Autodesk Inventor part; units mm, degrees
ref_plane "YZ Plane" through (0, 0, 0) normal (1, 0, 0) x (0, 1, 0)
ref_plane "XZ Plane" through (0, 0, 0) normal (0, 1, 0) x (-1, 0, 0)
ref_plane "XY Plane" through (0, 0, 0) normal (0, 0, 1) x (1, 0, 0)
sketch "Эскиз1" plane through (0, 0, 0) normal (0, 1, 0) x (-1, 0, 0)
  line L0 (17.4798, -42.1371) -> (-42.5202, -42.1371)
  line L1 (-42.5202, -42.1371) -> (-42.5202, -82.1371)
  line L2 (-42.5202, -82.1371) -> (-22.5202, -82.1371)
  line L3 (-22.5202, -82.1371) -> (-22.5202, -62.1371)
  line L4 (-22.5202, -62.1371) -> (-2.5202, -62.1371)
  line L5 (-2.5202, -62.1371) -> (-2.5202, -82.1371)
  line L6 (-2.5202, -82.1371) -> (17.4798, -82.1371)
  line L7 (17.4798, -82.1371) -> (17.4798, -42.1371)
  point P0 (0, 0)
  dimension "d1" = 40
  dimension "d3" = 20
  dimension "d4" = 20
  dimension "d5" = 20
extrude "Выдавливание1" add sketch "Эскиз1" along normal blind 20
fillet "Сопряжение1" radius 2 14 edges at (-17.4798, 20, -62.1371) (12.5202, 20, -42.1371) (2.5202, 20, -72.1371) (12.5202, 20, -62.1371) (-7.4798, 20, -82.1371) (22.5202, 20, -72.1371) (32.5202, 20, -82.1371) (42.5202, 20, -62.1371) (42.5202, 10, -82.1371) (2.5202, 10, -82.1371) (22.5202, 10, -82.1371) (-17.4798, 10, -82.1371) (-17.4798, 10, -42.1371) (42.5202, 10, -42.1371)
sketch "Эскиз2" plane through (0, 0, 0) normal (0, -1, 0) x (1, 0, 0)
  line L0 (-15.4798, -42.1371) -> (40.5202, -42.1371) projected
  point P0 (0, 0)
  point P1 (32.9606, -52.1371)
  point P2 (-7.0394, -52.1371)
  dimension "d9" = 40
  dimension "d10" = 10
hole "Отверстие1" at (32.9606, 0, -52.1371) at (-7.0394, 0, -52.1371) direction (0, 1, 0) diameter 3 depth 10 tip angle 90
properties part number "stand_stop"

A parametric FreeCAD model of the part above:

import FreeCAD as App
import Part
import Sketcher

V = App.Vector
Q = App.Units.Quantity


def edges_at(feature, points):
    """Names of the edges that pass closest to the given points."""
    edges = feature.Shape.Edges
    near = lambda p: min(range(len(edges)), key=lambda i: edges[i].distToShape(Part.Vertex(*p))[0])
    return sorted({f"Edge{near(p) + 1}" for p in points})


def add_polygon(sketch, points):
    """Adds a closed chain of lines whose ends are joined by coincident constraints."""
    first, n = sketch.GeometryCount, len(points)
    for a, b in zip(points, points[1:] + points[:1]):
        sketch.addGeometry(Part.LineSegment(App.Vector(*a, 0), App.Vector(*b, 0)), False)
    for i in range(n):
        sketch.addConstraint(Sketcher.Constraint("Coincident", first + i, 2, first + (i + 1) % n, 1))

doc = App.newDocument("Part")
body = doc.addObject("PartDesign::Body", "Body")

# Sketch on XZ plane
sketch1 = body.newObject("Sketcher::SketchObject", "Sketch")
sketch1.AttachmentSupport = (doc.getObject("XZ_Plane"), [""])
sketch1.MapMode = "FlatFace"
add_polygon(sketch1, [(-17, -82), (-17, -42), (43, -42), (43, -82), (23, -82), (23, -62), (3, -62), (3, -82)])  # lines 0-7
sketch1.addConstraint(Sketcher.Constraint("Vertical", 0))
sketch1.addConstraint(Sketcher.Constraint("Horizontal", 1))
sketch1.addConstraint(Sketcher.Constraint("Vertical", 2))
sketch1.addConstraint(Sketcher.Constraint("Horizontal", 3))
sketch1.addConstraint(Sketcher.Constraint("Vertical", 4))
sketch1.addConstraint(Sketcher.Constraint("Horizontal", 5))
sketch1.addConstraint(Sketcher.Constraint("Vertical", 6))
sketch1.addConstraint(Sketcher.Constraint("Horizontal", 7))
sketch1.addConstraint(Sketcher.Constraint("Horizontal", 3, 2, 6, 2))
sketch1.addConstraint(Sketcher.Constraint("Equal", 3, 5))
sketch1.addConstraint(Sketcher.Constraint("Equal", 5, 7))
sketch1.addConstraint(Sketcher.Constraint("Equal", 7, 4))
sketch1.addConstraint(Sketcher.Constraint("DistanceX", 3, 2, 3, 1, Q("20 mm")))
sketch1.addConstraint(Sketcher.Constraint("DistanceY", 0, 1, 0, 2, Q("40 mm")))
sketch1.addConstraint(Sketcher.Constraint("DistanceY", 0, 2, -1, 1, Q("42.137 mm")))
sketch1.addConstraint(Sketcher.Constraint("DistanceX", 0, 2, -1, 1, Q("17.4798 mm")))
pad1 = body.newObject("PartDesign::Pad", "Pad")
pad1.Profile = sketch1
pad1.Length = 20
pad1.Reversed = True
doc.recompute()

fillet = body.newObject("PartDesign::Fillet", "Fillet")
fillet.Base = (pad1, edges_at(pad1, [
    (-17.48, 20, -62.137),
    (12.52, 20, -42.137),
    (2.52, 20, -72.137),
    (12.52, 20, -62.137),
    (-7.48, 20, -82.137),
    (22.52, 20, -72.137),
    (32.52, 20, -82.137),
    (42.52, 20, -62.137),
    (42.52, 10, -82.137),
    (2.52, 10, -82.137),
    (22.52, 10, -82.137),
    (-17.48, 10, -82.137),
    (-17.48, 10, -42.137),
    (42.52, 10, -42.137),
]))
fillet.Radius = 2

# Sketch on XZ plane
sketch2 = body.newObject("Sketcher::SketchObject", "Sketch001")
sketch2.AttachmentSupport = (doc.getObject("XZ_Plane"), [""])
sketch2.MapMode = "FlatFace"
sketch2.addGeometry(Part.Circle(V(33, -52.1, 0), V(0, 0, 1), 1.5), False)
sketch2.addGeometry(Part.Circle(V(-7, -52.1, 0), V(0, 0, 1), 1.5), False)
sketch2.addConstraint(Sketcher.Constraint("Equal", 0, 1))
sketch2.addConstraint(Sketcher.Constraint("Horizontal", 0, 3, 1, 3))
sketch2.addConstraint(Sketcher.Constraint("Diameter", 0, Q("3 mm")))
sketch2.addConstraint(Sketcher.Constraint("DistanceX", 1, 3, 0, 3, Q("40 mm")))
sketch2.addConstraint(Sketcher.Constraint("DistanceY", 0, 3, -1, 1, Q("52.137 mm")))
sketch2.addConstraint(Sketcher.Constraint("DistanceX", -1, 1, 0, 3, Q("32.9606 mm")))
doc.recompute()
hole = body.newObject("PartDesign::Hole", "Hole")
hole.Profile = sketch2
hole.ThreadType = "None"
hole.Diameter = 3
hole.DepthType = "Dimension"
hole.Depth = 10
hole.DrillPoint = "Angled"
hole.DrillPointAngle = 90

doc.recompute()
